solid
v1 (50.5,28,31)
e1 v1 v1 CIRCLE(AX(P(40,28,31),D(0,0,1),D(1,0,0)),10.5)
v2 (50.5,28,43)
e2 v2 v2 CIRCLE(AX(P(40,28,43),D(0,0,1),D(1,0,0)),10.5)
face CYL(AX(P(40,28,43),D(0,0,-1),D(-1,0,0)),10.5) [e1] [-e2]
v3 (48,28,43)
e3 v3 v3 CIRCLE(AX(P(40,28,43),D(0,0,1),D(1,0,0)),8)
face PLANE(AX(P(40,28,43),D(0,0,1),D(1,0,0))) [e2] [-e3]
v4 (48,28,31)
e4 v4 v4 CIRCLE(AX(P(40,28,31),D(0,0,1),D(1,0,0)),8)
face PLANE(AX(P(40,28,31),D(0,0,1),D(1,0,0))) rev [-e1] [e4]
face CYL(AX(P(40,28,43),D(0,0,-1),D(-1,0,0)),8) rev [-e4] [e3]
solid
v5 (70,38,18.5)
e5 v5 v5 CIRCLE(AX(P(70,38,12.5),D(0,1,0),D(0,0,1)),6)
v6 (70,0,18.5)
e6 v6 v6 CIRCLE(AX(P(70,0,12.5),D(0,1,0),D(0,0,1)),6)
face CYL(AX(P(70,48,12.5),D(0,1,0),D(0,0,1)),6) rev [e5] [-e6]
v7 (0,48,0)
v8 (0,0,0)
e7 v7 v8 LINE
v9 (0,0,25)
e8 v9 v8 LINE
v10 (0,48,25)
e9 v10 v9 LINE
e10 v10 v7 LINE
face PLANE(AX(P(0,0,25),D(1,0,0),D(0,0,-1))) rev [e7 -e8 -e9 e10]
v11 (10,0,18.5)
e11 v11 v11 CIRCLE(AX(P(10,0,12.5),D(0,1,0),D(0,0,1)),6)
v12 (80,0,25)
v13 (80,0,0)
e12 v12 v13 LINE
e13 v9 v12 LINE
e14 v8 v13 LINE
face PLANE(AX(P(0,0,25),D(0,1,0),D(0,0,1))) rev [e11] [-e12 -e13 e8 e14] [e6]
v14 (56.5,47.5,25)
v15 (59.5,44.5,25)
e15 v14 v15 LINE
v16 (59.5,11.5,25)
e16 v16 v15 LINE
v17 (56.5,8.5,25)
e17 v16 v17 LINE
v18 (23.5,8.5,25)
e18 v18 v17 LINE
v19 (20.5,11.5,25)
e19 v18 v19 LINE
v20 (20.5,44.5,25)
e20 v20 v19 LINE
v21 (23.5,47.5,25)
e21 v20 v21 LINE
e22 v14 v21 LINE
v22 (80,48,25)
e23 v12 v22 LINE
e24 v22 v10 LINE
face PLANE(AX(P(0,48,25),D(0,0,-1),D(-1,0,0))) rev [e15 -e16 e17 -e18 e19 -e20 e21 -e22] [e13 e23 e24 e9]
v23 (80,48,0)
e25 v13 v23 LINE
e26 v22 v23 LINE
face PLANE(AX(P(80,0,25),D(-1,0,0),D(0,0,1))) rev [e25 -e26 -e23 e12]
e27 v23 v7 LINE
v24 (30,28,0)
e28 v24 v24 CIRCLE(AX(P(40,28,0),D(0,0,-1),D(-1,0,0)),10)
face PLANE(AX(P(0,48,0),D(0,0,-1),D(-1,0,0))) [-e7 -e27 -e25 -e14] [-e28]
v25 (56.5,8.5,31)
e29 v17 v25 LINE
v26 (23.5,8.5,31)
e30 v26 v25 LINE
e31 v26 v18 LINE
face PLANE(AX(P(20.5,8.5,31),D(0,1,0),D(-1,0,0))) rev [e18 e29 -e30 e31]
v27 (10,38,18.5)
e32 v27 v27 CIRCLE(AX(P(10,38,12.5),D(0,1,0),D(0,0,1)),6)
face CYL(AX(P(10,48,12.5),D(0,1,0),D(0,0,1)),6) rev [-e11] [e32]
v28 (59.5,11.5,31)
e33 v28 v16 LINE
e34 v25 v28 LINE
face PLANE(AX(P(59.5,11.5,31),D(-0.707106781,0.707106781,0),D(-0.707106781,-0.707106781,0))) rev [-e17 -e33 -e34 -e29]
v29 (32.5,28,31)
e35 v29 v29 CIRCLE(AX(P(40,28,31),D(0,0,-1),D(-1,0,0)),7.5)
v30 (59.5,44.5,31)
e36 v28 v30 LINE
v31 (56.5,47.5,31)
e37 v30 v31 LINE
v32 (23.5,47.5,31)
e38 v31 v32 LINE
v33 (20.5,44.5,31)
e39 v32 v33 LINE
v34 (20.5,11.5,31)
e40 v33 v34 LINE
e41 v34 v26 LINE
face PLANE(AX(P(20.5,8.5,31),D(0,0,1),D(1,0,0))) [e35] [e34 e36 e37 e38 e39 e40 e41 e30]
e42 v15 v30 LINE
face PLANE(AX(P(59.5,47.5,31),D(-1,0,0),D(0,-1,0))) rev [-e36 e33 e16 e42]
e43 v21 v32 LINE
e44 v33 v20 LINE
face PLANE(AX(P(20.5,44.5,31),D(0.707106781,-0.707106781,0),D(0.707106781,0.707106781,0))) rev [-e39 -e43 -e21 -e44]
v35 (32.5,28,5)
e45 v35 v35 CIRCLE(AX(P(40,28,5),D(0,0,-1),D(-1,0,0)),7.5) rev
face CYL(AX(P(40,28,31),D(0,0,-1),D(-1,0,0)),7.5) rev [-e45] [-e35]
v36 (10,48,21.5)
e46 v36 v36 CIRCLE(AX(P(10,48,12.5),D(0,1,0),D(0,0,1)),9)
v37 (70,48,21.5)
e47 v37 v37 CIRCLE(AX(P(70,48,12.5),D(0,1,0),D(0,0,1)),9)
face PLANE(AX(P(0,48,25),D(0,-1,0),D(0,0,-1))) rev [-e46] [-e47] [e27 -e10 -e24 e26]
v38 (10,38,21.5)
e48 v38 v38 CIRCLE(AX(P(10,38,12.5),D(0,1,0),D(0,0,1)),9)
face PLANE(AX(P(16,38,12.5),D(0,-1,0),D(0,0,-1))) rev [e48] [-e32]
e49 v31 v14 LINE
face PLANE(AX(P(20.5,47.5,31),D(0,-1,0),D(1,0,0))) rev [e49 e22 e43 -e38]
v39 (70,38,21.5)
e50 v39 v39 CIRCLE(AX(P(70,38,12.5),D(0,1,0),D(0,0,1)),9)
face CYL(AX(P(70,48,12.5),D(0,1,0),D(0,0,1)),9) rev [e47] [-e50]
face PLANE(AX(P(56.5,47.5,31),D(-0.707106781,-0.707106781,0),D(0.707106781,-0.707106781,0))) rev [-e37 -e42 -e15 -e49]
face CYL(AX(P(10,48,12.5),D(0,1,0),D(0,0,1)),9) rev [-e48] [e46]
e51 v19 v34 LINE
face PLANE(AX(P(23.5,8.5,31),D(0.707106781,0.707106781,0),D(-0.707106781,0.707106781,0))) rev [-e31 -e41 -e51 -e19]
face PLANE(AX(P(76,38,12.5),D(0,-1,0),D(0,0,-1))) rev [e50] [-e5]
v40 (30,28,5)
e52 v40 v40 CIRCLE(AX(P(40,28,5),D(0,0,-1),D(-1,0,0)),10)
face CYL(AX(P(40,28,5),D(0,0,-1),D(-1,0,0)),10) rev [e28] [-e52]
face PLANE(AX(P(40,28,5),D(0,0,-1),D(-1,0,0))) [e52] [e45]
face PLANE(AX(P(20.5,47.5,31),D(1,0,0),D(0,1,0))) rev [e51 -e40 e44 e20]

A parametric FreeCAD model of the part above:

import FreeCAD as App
import Part
import Sketcher
from FreeCAD import Vector
Q = App.Units.Quantity


def edges_at(feature, points):
    """Names of the edges that pass closest to the given points."""
    edges = feature.Shape.Edges
    near = lambda p: min(range(len(edges)), key=lambda i: edges[i].distToShape(Part.Vertex(*p))[0])
    return sorted({f"Edge{near(p) + 1}" for p in points})

doc = App.newDocument("Part")
body = doc.addObject("PartDesign::Body", "Body")

# Sketch on XY plane
sketch1 = body.newObject("Sketcher::SketchObject", "Sketch")
sketch1.AttachmentSupport = (doc.getObject("XY_Plane"), [""])
sketch1.MapMode = "FlatFace"
sketch1.addGeometry(Part.LineSegment(Vector(0, 48, 0), Vector(0, 0, 0)), False)
sketch1.addGeometry(Part.LineSegment(Vector(0, 0, 0), Vector(80, 0, 0)), False)
sketch1.addGeometry(Part.LineSegment(Vector(80, 0, 0), Vector(80, 48, 0)), False)
sketch1.addGeometry(Part.LineSegment(Vector(80, 48, 0), Vector(0, 48, 0)), False)
sketch1.addConstraint(Sketcher.Constraint("Coincident", 0, 2, 1, 1))
sketch1.addConstraint(Sketcher.Constraint("Coincident", 1, 2, 2, 1))
sketch1.addConstraint(Sketcher.Constraint("Coincident", 2, 2, 3, 1))
sketch1.addConstraint(Sketcher.Constraint("Coincident", 3, 2, 0, 1))
sketch1.addConstraint(Sketcher.Constraint("Vertical", 0))
sketch1.addConstraint(Sketcher.Constraint("Horizontal", 1))
sketch1.addConstraint(Sketcher.Constraint("Vertical", 2))
sketch1.addConstraint(Sketcher.Constraint("Horizontal", 3))
sketch1.addConstraint(Sketcher.Constraint("Coincident", 0, 2, -1, 1))
sketch1.addConstraint(Sketcher.Constraint("DistanceX", 1, 1, 1, 2, Q("80 mm")))
sketch1.addConstraint(Sketcher.Constraint("DistanceY", 0, 2, 0, 1, Q("48 mm")))
pad1 = body.newObject("PartDesign::Pad", "Pad")
pad1.Profile = sketch1
pad1.Length = 25

# Sketch on XY plane
sketch2 = body.newObject("Sketcher::SketchObject", "Sketch001")
sketch2.AttachmentSupport = (doc.getObject("XY_Plane"), [""])
sketch2.MapMode = "FlatFace"
sketch2.AttachmentOffset = App.Placement(Vector(0, 0, 25), App.Rotation())
sketch2.addGeometry(Part.LineSegment(Vector(20, 48, 0), Vector(20, 8, 0)), False)
sketch2.addGeometry(Part.LineSegment(Vector(20, 8, 0), Vector(60, 8, 0)), False)
sketch2.addGeometry(Part.LineSegment(Vector(60, 8, 0), Vector(60, 48, 0)), False)
sketch2.addGeometry(Part.LineSegment(Vector(60, 48, 0), Vector(20, 48, 0)), False)
sketch2.addConstraint(Sketcher.Constraint("Coincident", 0, 2, 1, 1))
sketch2.addConstraint(Sketcher.Constraint("Coincident", 1, 2, 2, 1))
sketch2.addConstraint(Sketcher.Constraint("Coincident", 2, 2, 3, 1))
sketch2.addConstraint(Sketcher.Constraint("Coincident", 3, 2, 0, 1))
sketch2.addConstraint(Sketcher.Constraint("Vertical", 0))
sketch2.addConstraint(Sketcher.Constraint("Horizontal", 1))
sketch2.addConstraint(Sketcher.Constraint("Vertical", 2))
sketch2.addConstraint(Sketcher.Constraint("Horizontal", 3))
sketch2.addConstraint(Sketcher.Constraint("Equal", 3, 0))
sketch2.addConstraint(Sketcher.Constraint("DistanceX", 1, 1, 1, 2, Q("39 mm")))
sketch2.addConstraint(Sketcher.Constraint("DistanceX", -1, 1, 0, 2, Q("20.5 mm")))
sketch2.addConstraint(Sketcher.Constraint("DistanceY", -1, 1, 0, 2, Q("8.5 mm")))
pad2 = body.newObject("PartDesign::Pad", "Pad001")
pad2.Profile = sketch2
pad2.Length = 6
doc.recompute()

chamfer = body.newObject("PartDesign::Chamfer", "Chamfer")
chamfer.Base = (pad2, edges_at(pad2, [
    (20.5, 47.5, 28),
    (20.5, 8.5, 28),
    (59.5, 8.5, 28),
    (59.5, 47.5, 28),
]))
chamfer.Size = 3

# Sketch on XY plane
sketch3 = body.newObject("Sketcher::SketchObject", "Sketch002")
sketch3.AttachmentSupport = (doc.getObject("XY_Plane"), [""])
sketch3.MapMode = "FlatFace"
sketch3.addGeometry(Part.Circle(Vector(40, 28, 0), Vector(0, 0, 1), 8), False)
sketch3.addConstraint(Sketcher.Constraint("Diameter", 0, Q("15 mm")))
sketch3.addConstraint(Sketcher.Constraint("DistanceX", -1, 1, 0, 3, Q("40 mm")))
sketch3.addConstraint(Sketcher.Constraint("DistanceY", -1, 1, 0, 3, Q("28 mm")))
pocket1 = body.newObject("PartDesign::Pocket", "Pocket")
pocket1.Profile = sketch3
pocket1.Type = "ThroughAll"
pocket1.Reversed = True

# Sketch on XY plane
sketch4 = body.newObject("Sketcher::SketchObject", "Sketch003")
sketch4.AttachmentSupport = (doc.getObject("XY_Plane"), [""])
sketch4.MapMode = "FlatFace"
sketch4.addGeometry(Part.Circle(Vector(40, 28, 0), Vector(0, 0, 1), 10), False)
sketch4.addConstraint(Sketcher.Constraint("Diameter", 0, Q("20 mm")))
sketch4.addConstraint(Sketcher.Constraint("DistanceX", -1, 1, 0, 3, Q("40 mm")))
sketch4.addConstraint(Sketcher.Constraint("DistanceY", -1, 1, 0, 3, Q("28 mm")))
pocket2 = body.newObject("PartDesign::Pocket", "Pocket001")
pocket2.Profile = sketch4
pocket2.Length = 5
pocket2.Reversed = True

# Sketch on XZ plane
sketch5 = body.newObject("Sketcher::SketchObject", "Sketch004")
sketch5.AttachmentSupport = (doc.getObject("XZ_Plane"), [""])
sketch5.MapMode = "FlatFace"
sketch5.AttachmentOffset = App.Placement(Vector(0, 0, -48), App.Rotation())
sketch5.addGeometry(Part.Circle(Vector(70, 12, 0), Vector(0, 0, 1), 6), False)
sketch5.addGeometry(Part.Circle(Vector(10, 12, 0), Vector(0, 0, 1), 6), False)
sketch5.addConstraint(Sketcher.Constraint("Equal", 0, 1))
sketch5.addConstraint(Sketcher.Constraint("Horizontal", 0, 3, 1, 3))
sketch5.addConstraint(Sketcher.Constraint("Diameter", 0, Q("12 mm")))
sketch5.addConstraint(Sketcher.Constraint("DistanceX", -1, 1, 0, 3, Q("70 mm")))
sketch5.addConstraint(Sketcher.Constraint("DistanceX", -1, 1, 1, 3, Q("10 mm")))
sketch5.addConstraint(Sketcher.Constraint("DistanceY", -1, 1, 0, 3, Q("12.5 mm")))
doc.recompute()
hole = body.newObject("PartDesign::Hole", "Hole")
hole.Profile = sketch5
hole.ThreadType = "None"
hole.Diameter = 12
hole.DepthType = "ThroughAll"
hole.HoleCutType = "Counterbore"
hole.HoleCutDiameter = 18
hole.HoleCutDepth = 10
hole.Reversed = True
body2 = doc.addObject("PartDesign::Body", "Body001")

# Sketch on XY plane
sketch6 = body2.newObject("Sketcher::SketchObject", "Sketch005")
sketch6.AttachmentSupport = (doc.getObject("XY_Plane001"), [""])
sketch6.MapMode = "FlatFace"
sketch6.AttachmentOffset = App.Placement(Vector(0, 0, 31), App.Rotation())
sketch6.addGeometry(Part.Circle(Vector(40, 28, 0), Vector(0, 0, 1), 10), False)
sketch6.addGeometry(Part.Circle(Vector(40, 28, 0), Vector(0, 0, 1), 8), False)
sketch6.addConstraint(Sketcher.Constraint("Coincident", 1, 3, 0, 3))
sketch6.addConstraint(Sketcher.Constraint("Diameter", 0, Q("21 mm")))
sketch6.addConstraint(Sketcher.Constraint("Diameter", 1, Q("16 mm")))
sketch6.addConstraint(Sketcher.Constraint("DistanceX", -1, 1, 0, 3, Q("40 mm")))
sketch6.addConstraint(Sketcher.Constraint("DistanceY", -1, 1, 0, 3, Q("28 mm")))
pad3 = body2.newObject("PartDesign::Pad", "Pad002")
pad3.Profile = sketch6
pad3.Length = 12

doc.recompute()
